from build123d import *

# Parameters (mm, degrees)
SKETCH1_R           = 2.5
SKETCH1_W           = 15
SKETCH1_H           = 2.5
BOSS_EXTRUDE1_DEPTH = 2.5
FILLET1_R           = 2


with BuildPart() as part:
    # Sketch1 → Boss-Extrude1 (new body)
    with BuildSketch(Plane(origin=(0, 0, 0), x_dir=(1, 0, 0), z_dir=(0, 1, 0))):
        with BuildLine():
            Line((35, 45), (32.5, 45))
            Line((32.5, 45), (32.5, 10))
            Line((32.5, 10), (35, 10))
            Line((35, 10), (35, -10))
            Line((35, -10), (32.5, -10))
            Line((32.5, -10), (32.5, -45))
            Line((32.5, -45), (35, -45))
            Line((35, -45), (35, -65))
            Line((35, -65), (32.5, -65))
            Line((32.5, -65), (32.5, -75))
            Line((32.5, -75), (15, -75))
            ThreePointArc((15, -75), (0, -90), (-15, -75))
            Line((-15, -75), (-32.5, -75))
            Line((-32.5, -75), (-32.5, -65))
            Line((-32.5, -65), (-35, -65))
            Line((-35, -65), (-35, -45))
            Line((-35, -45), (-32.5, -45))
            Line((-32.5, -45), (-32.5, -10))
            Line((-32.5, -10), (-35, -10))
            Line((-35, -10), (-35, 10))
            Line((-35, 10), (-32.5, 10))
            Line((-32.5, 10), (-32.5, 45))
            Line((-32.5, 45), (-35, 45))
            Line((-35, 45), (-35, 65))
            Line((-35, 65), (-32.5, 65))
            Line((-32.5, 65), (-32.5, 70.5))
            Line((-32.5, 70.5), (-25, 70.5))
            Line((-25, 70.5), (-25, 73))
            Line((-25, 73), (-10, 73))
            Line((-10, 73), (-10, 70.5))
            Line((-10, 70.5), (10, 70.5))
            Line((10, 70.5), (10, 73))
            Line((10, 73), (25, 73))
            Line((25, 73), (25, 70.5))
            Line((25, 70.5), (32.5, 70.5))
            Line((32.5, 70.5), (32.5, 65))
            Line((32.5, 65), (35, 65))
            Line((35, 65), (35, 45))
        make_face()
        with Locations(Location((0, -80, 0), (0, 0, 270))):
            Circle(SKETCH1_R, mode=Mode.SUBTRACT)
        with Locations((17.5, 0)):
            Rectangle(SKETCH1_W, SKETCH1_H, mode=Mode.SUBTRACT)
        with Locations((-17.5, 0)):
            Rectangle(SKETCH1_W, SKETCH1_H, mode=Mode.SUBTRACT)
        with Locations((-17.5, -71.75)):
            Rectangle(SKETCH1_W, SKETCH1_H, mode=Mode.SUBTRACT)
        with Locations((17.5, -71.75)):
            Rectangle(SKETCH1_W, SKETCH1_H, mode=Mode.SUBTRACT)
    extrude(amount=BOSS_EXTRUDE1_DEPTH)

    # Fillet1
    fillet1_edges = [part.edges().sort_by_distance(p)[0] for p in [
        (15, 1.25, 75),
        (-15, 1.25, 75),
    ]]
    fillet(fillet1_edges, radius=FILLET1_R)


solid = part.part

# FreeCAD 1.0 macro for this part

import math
import FreeCAD as App
import Part
import Sketcher
from FreeCAD import Vector


def edges_at(feature, points):
    """Names of the edges that pass closest to the given points."""
    edges = feature.Shape.Edges
    near = lambda p: min(range(len(edges)), key=lambda i: edges[i].distToShape(Part.Vertex(*p))[0])
    return sorted({f"Edge{near(p) + 1}" for p in points})


def add_polygon(sketch, points):
    """Adds a closed chain of lines whose ends are joined by coincident constraints."""
    first, n = sketch.GeometryCount, len(points)
    for a, b in zip(points, points[1:] + points[:1]):
        sketch.addGeometry(Part.LineSegment(App.Vector(*a, 0), App.Vector(*b, 0)), False)
    for i in range(n):
        sketch.addConstraint(Sketcher.Constraint("Coincident", first + i, 2, first + (i + 1) % n, 1))

doc = App.newDocument("Part")
body = doc.addObject("PartDesign::Body", "Body")

sketch1 = body.newObject("Sketcher::SketchObject", "Sketch")
sketch1.AttachmentSupport = (doc.getObject("XZ_Plane"), [""])
sketch1.MapMode = "FlatFace"
sketch1.addGeometry(Part.LineSegment(Vector(32.5, -45, 0), Vector(35, -45, 0)), False)
sketch1.addGeometry(Part.LineSegment(Vector(35, -45, 0), Vector(35, -65, 0)), False)
sketch1.addGeometry(Part.LineSegment(Vector(35, -65, 0), Vector(32.5, -65, 0)), False)
sketch1.addGeometry(Part.LineSegment(Vector(32.5, -65, 0), Vector(32.5, -70.5, 0)), False)
sketch1.addGeometry(Part.LineSegment(Vector(32.5, -70.5, 0), Vector(25, -70.5, 0)), False)
sketch1.addGeometry(Part.LineSegment(Vector(25, -70.5, 0), Vector(25, -73, 0)), False)
sketch1.addGeometry(Part.LineSegment(Vector(25, -73, 0), Vector(10, -73, 0)), False)
sketch1.addGeometry(Part.LineSegment(Vector(10, -73, 0), Vector(10, -70.5, 0)), False)
sketch1.addGeometry(Part.LineSegment(Vector(10, -70.5, 0), Vector(-10, -70.5, 0)), False)
sketch1.addGeometry(Part.LineSegment(Vector(-10, -70.5, 0), Vector(-10, -73, 0)), False)
sketch1.addGeometry(Part.LineSegment(Vector(-10, -73, 0), Vector(-25, -73, 0)), False)
sketch1.addGeometry(Part.LineSegment(Vector(-25, -73, 0), Vector(-25, -70.5, 0)), False)
sketch1.addGeometry(Part.LineSegment(Vector(-25, -70.5, 0), Vector(-32.5, -70.5, 0)), False)
sketch1.addGeometry(Part.LineSegment(Vector(-32.5, -70.5, 0), Vector(-32.5, -65, 0)), False)
sketch1.addGeometry(Part.LineSegment(Vector(-32.5, -65, 0), Vector(-35, -65, 0)), False)
sketch1.addGeometry(Part.LineSegment(Vector(-35, -65, 0), Vector(-35, -45, 0)), False)
sketch1.addGeometry(Part.LineSegment(Vector(-35, -45, 0), Vector(-32.5, -45, 0)), False)
sketch1.addGeometry(Part.LineSegment(Vector(-32.5, -45, 0), Vector(-32.5, -10, 0)), False)
sketch1.addGeometry(Part.LineSegment(Vector(-32.5, -10, 0), Vector(-35, -10, 0)), False)
sketch1.addGeometry(Part.LineSegment(Vector(-35, -10, 0), Vector(-35, 10, 0)), False)
sketch1.addGeometry(Part.LineSegment(Vector(-35, 10, 0), Vector(-32.5, 10, 0)), False)
sketch1.addGeometry(Part.LineSegment(Vector(-32.5, 10, 0), Vector(-32.5, 45, 0)), False)
sketch1.addGeometry(Part.LineSegment(Vector(-32.5, 45, 0), Vector(-35, 45, 0)), False)
sketch1.addGeometry(Part.LineSegment(Vector(-35, 45, 0), Vector(-35, 65, 0)), False)
sketch1.addGeometry(Part.LineSegment(Vector(-35, 65, 0), Vector(-32.5, 65, 0)), False)
sketch1.addGeometry(Part.LineSegment(Vector(-32.5, 65, 0), Vector(-32.5, 75, 0)), False)
sketch1.addGeometry(Part.LineSegment(Vector(-32.5, 75, 0), Vector(-15, 75, 0)), False)
sketch1.addGeometry(Part.ArcOfCircle(Part.Circle(Vector(0, 75, 0), Vector(0, 0, 1), 15), math.radians(0), math.radians(180)), False)
sketch1.addGeometry(Part.LineSegment(Vector(15, 75, 0), Vector(32.5, 75, 0)), False)
sketch1.addGeometry(Part.LineSegment(Vector(32.5, 75, 0), Vector(32.5, 65, 0)), False)
sketch1.addGeometry(Part.LineSegment(Vector(32.5, 65, 0), Vector(35, 65, 0)), False)
sketch1.addGeometry(Part.LineSegment(Vector(35, 65, 0), Vector(35, 45, 0)), False)
sketch1.addGeometry(Part.LineSegment(Vector(35, 45, 0), Vector(32.5, 45, 0)), False)
sketch1.addGeometry(Part.LineSegment(Vector(32.5, 45, 0), Vector(32.5, 10, 0)), False)
sketch1.addGeometry(Part.LineSegment(Vector(32.5, 10, 0), Vector(35, 10, 0)), False)
sketch1.addGeometry(Part.LineSegment(Vector(35, 10, 0), Vector(35, -10, 0)), False)
sketch1.addGeometry(Part.LineSegment(Vector(35, -10, 0), Vector(32.5, -10, 0)), False)
sketch1.addGeometry(Part.LineSegment(Vector(32.5, -10, 0), Vector(32.5, -45, 0)), False)
add_polygon(sketch1, [(10, 73), (10, 70.5), (25, 70.5), (25, 73)])
sketch1.addGeometry(Part.Circle(Vector(0, 80, 0), Vector(0, 0, 1), 2.5), False)
add_polygon(sketch1, [(-25, 73), (-25, 70.5), (-10, 70.5), (-10, 73)])
add_polygon(sketch1, [(10, 1.2), (10, -1.2), (25, -1.2), (25, 1.2)])
add_polygon(sketch1, [(-25, 1.2), (-25, -1.2), (-10, -1.2), (-10, 1.2)])
sketch1.addConstraint(Sketcher.Constraint("Coincident", 0, 2, 1, 1))
sketch1.addConstraint(Sketcher.Constraint("Coincident", 1, 2, 2, 1))
sketch1.addConstraint(Sketcher.Constraint("Coincident", 2, 2, 3, 1))
sketch1.addConstraint(Sketcher.Constraint("Coincident", 3, 2, 4, 1))
sketch1.addConstraint(Sketcher.Constraint("Coincident", 4, 2, 5, 1))
sketch1.addConstraint(Sketcher.Constraint("Coincident", 5, 2, 6, 1))
sketch1.addConstraint(Sketcher.Constraint("Coincident", 6, 2, 7, 1))
sketch1.addConstraint(Sketcher.Constraint("Coincident", 7, 2, 8, 1))
sketch1.addConstraint(Sketcher.Constraint("Coincident", 8, 2, 9, 1))
sketch1.addConstraint(Sketcher.Constraint("Coincident", 9, 2, 10, 1))
sketch1.addConstraint(Sketcher.Constraint("Coincident", 10, 2, 11, 1))
sketch1.addConstraint(Sketcher.Constraint("Coincident", 11, 2, 12, 1))
sketch1.addConstraint(Sketcher.Constraint("Coincident", 12, 2, 13, 1))
sketch1.addConstraint(Sketcher.Constraint("Coincident", 13, 2, 14, 1))
sketch1.addConstraint(Sketcher.Constraint("Coincident", 14, 2, 15, 1))
sketch1.addConstraint(Sketcher.Constraint("Coincident", 15, 2, 16, 1))
sketch1.addConstraint(Sketcher.Constraint("Coincident", 16, 2, 17, 1))
sketch1.addConstraint(Sketcher.Constraint("Coincident", 17, 2, 18, 1))
sketch1.addConstraint(Sketcher.Constraint("Coincident", 18, 2, 19, 1))
sketch1.addConstraint(Sketcher.Constraint("Coincident", 19, 2, 20, 1))
sketch1.addConstraint(Sketcher.Constraint("Coincident", 20, 2, 21, 1))
sketch1.addConstraint(Sketcher.Constraint("Coincident", 21, 2, 22, 1))
sketch1.addConstraint(Sketcher.Constraint("Coincident", 22, 2, 23, 1))
sketch1.addConstraint(Sketcher.Constraint("Coincident", 23, 2, 24, 1))
sketch1.addConstraint(Sketcher.Constraint("Coincident", 24, 2, 25, 1))
sketch1.addConstraint(Sketcher.Constraint("Coincident", 25, 2, 26, 1))
sketch1.addConstraint(Sketcher.Constraint("Coincident", 26, 2, 27, 2))
sketch1.addConstraint(Sketcher.Constraint("Coincident", 27, 1, 28, 1))
sketch1.addConstraint(Sketcher.Constraint("Coincident", 28, 2, 29, 1))
sketch1.addConstraint(Sketcher.Constraint("Coincident", 29, 2, 30, 1))
sketch1.addConstraint(Sketcher.Constraint("Coincident", 30, 2, 31, 1))
sketch1.addConstraint(Sketcher.Constraint("Coincident", 31, 2, 32, 1))
sketch1.addConstraint(Sketcher.Constraint("Coincident", 32, 2, 33, 1))
sketch1.addConstraint(Sketcher.Constraint("Coincident", 33, 2, 34, 1))
sketch1.addConstraint(Sketcher.Constraint("Coincident", 34, 2, 35, 1))
sketch1.addConstraint(Sketcher.Constraint("Coincident", 35, 2, 36, 1))
sketch1.addConstraint(Sketcher.Constraint("Coincident", 36, 2, 37, 1))
sketch1.addConstraint(Sketcher.Constraint("Coincident", 37, 2, 0, 1))
sketch1.addConstraint(Sketcher.Constraint("Horizontal", 0))
sketch1.addConstraint(Sketcher.Constraint("Vertical", 1))
sketch1.addConstraint(Sketcher.Constraint("Horizontal", 2))
sketch1.addConstraint(Sketcher.Constraint("Vertical", 3))
sketch1.addConstraint(Sketcher.Constraint("Horizontal", 4))
sketch1.addConstraint(Sketcher.Constraint("Vertical", 5))
sketch1.addConstraint(Sketcher.Constraint("Horizontal", 6))
sketch1.addConstraint(Sketcher.Constraint("Vertical", 7))
sketch1.addConstraint(Sketcher.Constraint("Horizontal", 8))
sketch1.addConstraint(Sketcher.Constraint("Vertical", 9))
sketch1.addConstraint(Sketcher.Constraint("Horizontal", 10))
sketch1.addConstraint(Sketcher.Constraint("Vertical", 11))
sketch1.addConstraint(Sketcher.Constraint("Horizontal", 12))
sketch1.addConstraint(Sketcher.Constraint("Vertical", 13))
sketch1.addConstraint(Sketcher.Constraint("Horizontal", 14))
sketch1.addConstraint(Sketcher.Constraint("Vertical", 15))
sketch1.addConstraint(Sketcher.Constraint("Horizontal", 16))
sketch1.addConstraint(Sketcher.Constraint("Vertical", 17))
sketch1.addConstraint(Sketcher.Constraint("Horizontal", 18))
sketch1.addConstraint(Sketcher.Constraint("Vertical", 19))
sketch1.addConstraint(Sketcher.Constraint("Horizontal", 20))
sketch1.addConstraint(Sketcher.Constraint("Vertical", 21))
sketch1.addConstraint(Sketcher.Constraint("Horizontal", 22))
sketch1.addConstraint(Sketcher.Constraint("Vertical", 23))
sketch1.addConstraint(Sketcher.Constraint("Horizontal", 24))
sketch1.addConstraint(Sketcher.Constraint("Vertical", 25))
sketch1.addConstraint(Sketcher.Constraint("Horizontal", 26))
sketch1.addConstraint(Sketcher.Constraint("Horizontal", 28))
sketch1.addConstraint(Sketcher.Constraint("Vertical", 29))
sketch1.addConstraint(Sketcher.Constraint("Horizontal", 30))
sketch1.addConstraint(Sketcher.Constraint("Vertical", 31))
sketch1.addConstraint(Sketcher.Constraint("Horizontal", 32))
sketch1.addConstraint(Sketcher.Constraint("Vertical", 33))
sketch1.addConstraint(Sketcher.Constraint("Horizontal", 34))
sketch1.addConstraint(Sketcher.Constraint("Vertical", 35))
sketch1.addConstraint(Sketcher.Constraint("Horizontal", 36))
sketch1.addConstraint(Sketcher.Constraint("Vertical", 37))
sketch1.addConstraint(Sketcher.Constraint("Vertical", 38))
sketch1.addConstraint(Sketcher.Constraint("Horizontal", 39))
sketch1.addConstraint(Sketcher.Constraint("Vertical", 40))
sketch1.addConstraint(Sketcher.Constraint("Horizontal", 41))
sketch1.addConstraint(Sketcher.Constraint("Vertical", 43))
sketch1.addConstraint(Sketcher.Constraint("Horizontal", 44))
sketch1.addConstraint(Sketcher.Constraint("Vertical", 45))
sketch1.addConstraint(Sketcher.Constraint("Horizontal", 46))
sketch1.addConstraint(Sketcher.Constraint("Vertical", 47))
sketch1.addConstraint(Sketcher.Constraint("Horizontal", 48))
sketch1.addConstraint(Sketcher.Constraint("Vertical", 49))
sketch1.addConstraint(Sketcher.Constraint("Horizontal", 50))
sketch1.addConstraint(Sketcher.Constraint("Vertical", 51))
sketch1.addConstraint(Sketcher.Constraint("Horizontal", 52))
sketch1.addConstraint(Sketcher.Constraint("Vertical", 53))
sketch1.addConstraint(Sketcher.Constraint("Horizontal", 54))
sketch1.addConstraint(Sketcher.Constraint("Symmetric", 0, 2, 22, 2, -1, 1))
sketch1.addConstraint(Sketcher.Constraint("Symmetric", 2, 2, 24, 2, -1, 1))
sketch1.addConstraint(Sketcher.Constraint("Symmetric", 13, 2, 29, 2, -1, 1))
sketch1.addConstraint(Sketcher.Constraint("Symmetric", 15, 2, 31, 2, -1, 1))
sketch1.addConstraint(Sketcher.Constraint("Symmetric", 17, 2, 33, 2, -1, 1))
sketch1.addConstraint(Sketcher.Constraint("Symmetric", 19, 2, 35, 2, -1, 1))
sketch1.addConstraint(Sketcher.Constraint("Symmetric", 8, 2, 38, 2, -1, 1))
sketch1.addConstraint(Sketcher.Constraint("Symmetric", 11, 2, 39, 2, -1, 1))
sketch1.addConstraint(Sketcher.Constraint("Symmetric", 4, 2, 43, 2, -1, 1))
sketch1.addConstraint(Sketcher.Constraint("Symmetric", 7, 2, 44, 2, -1, 1))
sketch1.addConstraint(Sketcher.Constraint("Symmetric", 49, 2, 51, 2, -1, 1))
sketch1.addConstraint(Sketcher.Constraint("Symmetric", 47, 2, 53, 2, -1, 1))
sketch1.addConstraint(Sketcher.Constraint("Symmetric", 6, 2, 9, 2, -2))
sketch1.addConstraint(Sketcher.Constraint("Symmetric", 2, 2, 13, 2, -2))
sketch1.addConstraint(Sketcher.Constraint("Symmetric", 0, 2, 15, 2, -2))
sketch1.addConstraint(Sketcher.Constraint("Symmetric", 26, 2, 27, 1, -2))
sketch1.addConstraint(Sketcher.Constraint("Symmetric", 20, 2, 33, 2, -2))
sketch1.addConstraint(Sketcher.Constraint("Symmetric", 40, 2, 46, 2, -2))
sketch1.addConstraint(Sketcher.Constraint("PointOnObject", 42, 3, -2))
sketch1.addConstraint(Sketcher.Constraint("Horizontal", 27, 3, 25, 2))
sketch1.addConstraint(Sketcher.Constraint("Horizontal", 48, 2, 51, 2))
sketch1.addConstraint(Sketcher.Constraint("Vertical", 13, 2, 16, 2))
sketch1.addConstraint(Sketcher.Constraint("Vertical", 15, 2, 18, 2))
sketch1.addConstraint(Sketcher.Constraint("Vertical", 33, 2, 36, 2))
sketch1.addConstraint(Sketcher.Constraint("Vertical", 41, 2, 47, 2))
sketch1.addConstraint(Sketcher.Constraint("Vertical", 40, 2, 48, 2))
sketch1.addConstraint(Sketcher.Constraint("Equal", 8, 1))
sketch1.addConstraint(Sketcher.Constraint("Equal", 36, 5))
sketch1.addConstraint(Sketcher.Constraint("Equal", 15, 19))
sketch1.addConstraint(Sketcher.Constraint("Equal", 11, 38))
sketch1.addConstraint(Sketcher.Constraint("Equal", 45, 47))
sketch1.addConstraint(Sketcher.Constraint("Diameter", 42, 5.0))
sketch1.addConstraint(Sketcher.Constraint("Radius", 27, 15.0))
sketch1.addConstraint(Sketcher.Constraint("DistanceX", 6, 2, 6, 1, 15.0))
sketch1.addConstraint(Sketcher.Constraint("DistanceX", 8, 2, 8, 1, 20.0))
sketch1.addConstraint(Sketcher.Constraint("DistanceY", 17, 1, 17, 2, 35.0))
sketch1.addConstraint(Sketcher.Constraint("DistanceY", 25, 1, 25, 2, 10.0))
sketch1.addConstraint(Sketcher.Constraint("DistanceX", 0, 1, 0, 2, 2.5))
sketch1.addConstraint(Sketcher.Constraint("DistanceX", 4, 2, 4, 1, 7.5))
sketch1.addConstraint(Sketcher.Constraint("DistanceY", 3, 2, 3, 1, 5.5))
sketch1.addConstraint(Sketcher.Constraint("DistanceY", -1, 1, 42, 3, 80.0))
pad1 = body.newObject("PartDesign::Pad", "Pad")
pad1.Profile = sketch1
pad1.Length = 2.5
pad1.Reversed = True
doc.recompute()

fillet = body.newObject("PartDesign::Fillet", "Fillet")
fillet.Base = (pad1, edges_at(pad1, [(15, 1.25, 75), (-15, 1.25, 75)]))
fillet.Radius = 2

doc.recompute()
